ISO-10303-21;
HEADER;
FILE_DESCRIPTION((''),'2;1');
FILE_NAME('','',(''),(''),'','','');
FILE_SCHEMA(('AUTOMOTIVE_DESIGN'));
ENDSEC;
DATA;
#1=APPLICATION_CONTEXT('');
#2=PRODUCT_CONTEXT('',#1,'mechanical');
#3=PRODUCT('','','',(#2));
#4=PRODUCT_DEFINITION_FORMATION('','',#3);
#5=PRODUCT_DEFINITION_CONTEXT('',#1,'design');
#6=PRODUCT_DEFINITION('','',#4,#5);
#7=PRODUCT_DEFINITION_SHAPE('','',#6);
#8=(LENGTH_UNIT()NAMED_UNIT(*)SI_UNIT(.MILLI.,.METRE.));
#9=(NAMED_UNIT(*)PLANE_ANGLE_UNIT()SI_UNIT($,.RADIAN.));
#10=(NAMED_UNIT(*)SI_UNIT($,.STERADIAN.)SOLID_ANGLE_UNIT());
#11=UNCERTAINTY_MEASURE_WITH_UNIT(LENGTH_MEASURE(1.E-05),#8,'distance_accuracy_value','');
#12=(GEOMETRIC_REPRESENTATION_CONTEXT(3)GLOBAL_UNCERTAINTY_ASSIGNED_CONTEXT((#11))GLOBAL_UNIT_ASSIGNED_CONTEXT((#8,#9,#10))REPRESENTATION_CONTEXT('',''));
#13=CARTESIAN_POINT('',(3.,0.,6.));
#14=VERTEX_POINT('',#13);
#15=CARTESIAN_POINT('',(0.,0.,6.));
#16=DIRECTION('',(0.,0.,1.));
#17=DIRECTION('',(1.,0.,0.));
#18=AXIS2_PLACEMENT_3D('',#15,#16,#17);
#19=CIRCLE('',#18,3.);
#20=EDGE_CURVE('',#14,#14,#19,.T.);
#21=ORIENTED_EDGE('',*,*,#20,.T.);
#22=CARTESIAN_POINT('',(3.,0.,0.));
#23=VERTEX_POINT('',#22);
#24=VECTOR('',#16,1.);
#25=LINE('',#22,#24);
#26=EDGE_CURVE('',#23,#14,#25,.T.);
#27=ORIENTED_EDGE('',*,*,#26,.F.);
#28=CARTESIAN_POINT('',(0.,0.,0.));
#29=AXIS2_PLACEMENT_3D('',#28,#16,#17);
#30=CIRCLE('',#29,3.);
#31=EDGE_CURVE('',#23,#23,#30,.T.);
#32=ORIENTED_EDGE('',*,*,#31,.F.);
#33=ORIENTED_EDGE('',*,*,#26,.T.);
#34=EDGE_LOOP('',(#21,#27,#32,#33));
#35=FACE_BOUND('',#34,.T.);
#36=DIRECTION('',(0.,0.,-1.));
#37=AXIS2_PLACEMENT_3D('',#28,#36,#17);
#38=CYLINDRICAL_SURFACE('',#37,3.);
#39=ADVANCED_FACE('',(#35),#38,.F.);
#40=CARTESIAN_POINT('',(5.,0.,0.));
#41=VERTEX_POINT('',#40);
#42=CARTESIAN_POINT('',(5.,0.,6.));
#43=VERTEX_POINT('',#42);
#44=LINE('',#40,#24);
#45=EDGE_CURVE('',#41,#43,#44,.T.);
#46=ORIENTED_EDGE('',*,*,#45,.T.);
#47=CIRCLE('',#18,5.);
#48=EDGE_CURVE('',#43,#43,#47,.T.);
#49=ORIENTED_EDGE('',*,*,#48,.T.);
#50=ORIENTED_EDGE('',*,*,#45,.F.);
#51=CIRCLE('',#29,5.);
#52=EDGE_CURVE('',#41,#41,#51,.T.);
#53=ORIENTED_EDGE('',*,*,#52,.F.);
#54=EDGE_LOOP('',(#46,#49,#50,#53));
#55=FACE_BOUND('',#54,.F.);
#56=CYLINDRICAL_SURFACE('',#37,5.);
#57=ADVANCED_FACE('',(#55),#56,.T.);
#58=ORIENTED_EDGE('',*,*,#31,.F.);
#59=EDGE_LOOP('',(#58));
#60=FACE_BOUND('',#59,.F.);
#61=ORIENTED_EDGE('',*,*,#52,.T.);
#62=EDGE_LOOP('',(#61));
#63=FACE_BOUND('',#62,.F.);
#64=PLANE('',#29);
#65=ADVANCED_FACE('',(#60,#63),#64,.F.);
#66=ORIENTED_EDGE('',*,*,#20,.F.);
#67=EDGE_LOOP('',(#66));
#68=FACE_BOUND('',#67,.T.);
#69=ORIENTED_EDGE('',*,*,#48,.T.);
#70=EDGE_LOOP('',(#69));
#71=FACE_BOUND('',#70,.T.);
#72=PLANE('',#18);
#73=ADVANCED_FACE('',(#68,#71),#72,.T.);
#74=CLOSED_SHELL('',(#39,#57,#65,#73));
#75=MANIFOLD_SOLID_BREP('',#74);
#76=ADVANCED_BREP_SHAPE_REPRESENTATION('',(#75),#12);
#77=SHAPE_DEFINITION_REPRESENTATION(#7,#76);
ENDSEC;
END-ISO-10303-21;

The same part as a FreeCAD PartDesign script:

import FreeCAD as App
import Part
import Sketcher

doc = App.newDocument("Part")
body = doc.addObject("PartDesign::Body", "Body")

# Sketch on XY plane
sketch1 = body.newObject("Sketcher::SketchObject", "Sketch")
sketch1.AttachmentSupport = (doc.getObject("XY_Plane"), [""])
sketch1.MapMode = "FlatFace"
sketch1.addGeometry(Part.Circle(App.Vector(0, 0, 0), App.Vector(0, 0, 1), 5), False)
sketch1.addGeometry(Part.Circle(App.Vector(0, 0, 0), App.Vector(0, 0, 1), 3), False)
sketch1.addConstraint(Sketcher.Constraint("Coincident", 0, 3, -1, 1))
sketch1.addConstraint(Sketcher.Constraint("Coincident", 1, 3, -1, 1))
sketch1.addConstraint(Sketcher.Constraint("Diameter", 0, 10.0))
sketch1.addConstraint(Sketcher.Constraint("Diameter", 1, 6.0))
pad1 = body.newObject("PartDesign::Pad", "Pad")
pad1.Profile = sketch1
pad1.Length = 6

doc.recompute()
